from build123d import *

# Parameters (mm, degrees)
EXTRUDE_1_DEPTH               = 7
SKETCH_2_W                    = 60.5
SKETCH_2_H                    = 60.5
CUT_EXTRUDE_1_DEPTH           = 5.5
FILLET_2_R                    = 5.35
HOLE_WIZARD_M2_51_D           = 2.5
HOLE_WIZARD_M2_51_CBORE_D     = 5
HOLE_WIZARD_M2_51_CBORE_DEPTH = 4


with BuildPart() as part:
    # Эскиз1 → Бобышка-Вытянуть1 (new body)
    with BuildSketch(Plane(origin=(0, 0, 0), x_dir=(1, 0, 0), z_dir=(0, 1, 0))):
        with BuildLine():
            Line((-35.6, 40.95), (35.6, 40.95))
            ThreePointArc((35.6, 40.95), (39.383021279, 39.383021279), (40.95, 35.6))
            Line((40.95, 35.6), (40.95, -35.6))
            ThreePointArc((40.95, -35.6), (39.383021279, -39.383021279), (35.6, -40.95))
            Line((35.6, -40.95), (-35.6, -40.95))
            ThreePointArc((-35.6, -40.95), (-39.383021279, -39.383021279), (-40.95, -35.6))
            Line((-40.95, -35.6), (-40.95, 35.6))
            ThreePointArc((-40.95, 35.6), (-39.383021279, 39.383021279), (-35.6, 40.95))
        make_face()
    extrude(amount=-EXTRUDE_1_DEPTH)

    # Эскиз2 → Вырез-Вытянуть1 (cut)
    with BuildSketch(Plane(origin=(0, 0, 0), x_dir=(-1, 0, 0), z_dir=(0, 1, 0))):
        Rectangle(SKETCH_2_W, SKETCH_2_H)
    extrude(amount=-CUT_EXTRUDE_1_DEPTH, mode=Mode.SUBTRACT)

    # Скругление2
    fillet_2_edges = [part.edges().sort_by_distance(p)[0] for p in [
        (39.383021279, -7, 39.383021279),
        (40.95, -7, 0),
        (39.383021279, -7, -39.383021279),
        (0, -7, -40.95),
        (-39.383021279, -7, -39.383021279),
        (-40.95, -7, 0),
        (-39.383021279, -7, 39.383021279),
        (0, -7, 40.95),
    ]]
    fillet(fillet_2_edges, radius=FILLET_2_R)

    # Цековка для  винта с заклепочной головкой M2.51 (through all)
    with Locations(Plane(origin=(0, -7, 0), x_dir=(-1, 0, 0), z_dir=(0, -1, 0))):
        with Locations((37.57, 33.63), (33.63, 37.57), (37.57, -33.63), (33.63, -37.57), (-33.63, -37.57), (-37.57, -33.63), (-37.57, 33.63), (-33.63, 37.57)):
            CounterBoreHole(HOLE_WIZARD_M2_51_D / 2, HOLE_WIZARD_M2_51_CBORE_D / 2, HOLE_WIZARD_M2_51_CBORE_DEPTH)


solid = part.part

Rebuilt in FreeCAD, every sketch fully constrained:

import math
import FreeCAD as App
import Part
import Sketcher
from FreeCAD import Vector


def edges_at(feature, points):
    """Names of the edges that pass closest to the given points."""
    edges = feature.Shape.Edges
    near = lambda p: min(range(len(edges)), key=lambda i: edges[i].distToShape(Part.Vertex(*p))[0])
    return sorted({f"Edge{near(p) + 1}" for p in points})

doc = App.newDocument("Part")
body = doc.addObject("PartDesign::Body", "Body")

# Sketch on XZ plane
sketch1 = body.newObject("Sketcher::SketchObject", "Sketch")
sketch1.AttachmentSupport = (doc.getObject("XZ_Plane"), [""])
sketch1.MapMode = "FlatFace"
sketch1.addGeometry(Part.LineSegment(Vector(36, -41, 0), Vector(-36, -41, 0)), False)
sketch1.addGeometry(Part.ArcOfCircle(Part.Circle(Vector(-36, -36, 0), Vector(0, 0, 1), 5), math.radians(-180), math.radians(-90)), False)
sketch1.addGeometry(Part.LineSegment(Vector(-41, -36, 0), Vector(-41, 36, 0)), False)
sketch1.addGeometry(Part.ArcOfCircle(Part.Circle(Vector(-36, 36, 0), Vector(0, 0, 1), 5), math.radians(90), math.radians(180)), False)
sketch1.addGeometry(Part.LineSegment(Vector(-36, 41, 0), Vector(36, 41, 0)), False)
sketch1.addGeometry(Part.ArcOfCircle(Part.Circle(Vector(36, 36, 0), Vector(0, 0, 1), 5), math.radians(0), math.radians(90)), False)
sketch1.addGeometry(Part.LineSegment(Vector(41, 36, 0), Vector(41, -36, 0)), False)
sketch1.addGeometry(Part.ArcOfCircle(Part.Circle(Vector(36, -36, 0), Vector(0, 0, 1), 5), math.radians(-90), math.radians(0)), False)
sketch1.addConstraint(Sketcher.Constraint("Tangent", 0, 2, 1, 2))
sketch1.addConstraint(Sketcher.Constraint("Tangent", 1, 1, 2, 1))
sketch1.addConstraint(Sketcher.Constraint("Tangent", 2, 2, 3, 2))
sketch1.addConstraint(Sketcher.Constraint("Tangent", 3, 1, 4, 1))
sketch1.addConstraint(Sketcher.Constraint("Tangent", 4, 2, 5, 2))
sketch1.addConstraint(Sketcher.Constraint("Tangent", 5, 1, 6, 1))
sketch1.addConstraint(Sketcher.Constraint("Tangent", 6, 2, 7, 2))
sketch1.addConstraint(Sketcher.Constraint("Tangent", 7, 1, 0, 1))
sketch1.addConstraint(Sketcher.Constraint("Horizontal", 0))
sketch1.addConstraint(Sketcher.Constraint("Vertical", 2))
sketch1.addConstraint(Sketcher.Constraint("Horizontal", 4))
sketch1.addConstraint(Sketcher.Constraint("Vertical", 6))
sketch1.addConstraint(Sketcher.Constraint("Equal", 1, 3))
sketch1.addConstraint(Sketcher.Constraint("Equal", 3, 5))
sketch1.addConstraint(Sketcher.Constraint("Equal", 5, 7))
sketch1.addConstraint(Sketcher.Constraint("Symmetric", 1, 3, 5, 3, -1, 1))
sketch1.addConstraint(Sketcher.Constraint("Equal", 4, 2))
sketch1.addConstraint(Sketcher.Constraint("Radius", 1, 5.35))
sketch1.addConstraint(Sketcher.Constraint("DistanceX", 0, 2, 0, 1, 71.2))
pad1 = body.newObject("PartDesign::Pad", "Pad")
pad1.Profile = sketch1
pad1.Length = 7

# Sketch on XZ plane
sketch2 = body.newObject("Sketcher::SketchObject", "Sketch001")
sketch2.AttachmentSupport = (doc.getObject("XZ_Plane"), [""])
sketch2.MapMode = "FlatFace"
sketch2.addGeometry(Part.LineSegment(Vector(30, 30, 0), Vector(30, -30, 0)), False)
sketch2.addGeometry(Part.LineSegment(Vector(30, -30, 0), Vector(-30, -30, 0)), False)
sketch2.addGeometry(Part.LineSegment(Vector(-30, -30, 0), Vector(-30, 30, 0)), False)
sketch2.addGeometry(Part.LineSegment(Vector(-30, 30, 0), Vector(30, 30, 0)), False)
sketch2.addConstraint(Sketcher.Constraint("Coincident", 0, 2, 1, 1))
sketch2.addConstraint(Sketcher.Constraint("Coincident", 1, 2, 2, 1))
sketch2.addConstraint(Sketcher.Constraint("Coincident", 2, 2, 3, 1))
sketch2.addConstraint(Sketcher.Constraint("Coincident", 3, 2, 0, 1))
sketch2.addConstraint(Sketcher.Constraint("Vertical", 0))
sketch2.addConstraint(Sketcher.Constraint("Horizontal", 1))
sketch2.addConstraint(Sketcher.Constraint("Vertical", 2))
sketch2.addConstraint(Sketcher.Constraint("Horizontal", 3))
sketch2.addConstraint(Sketcher.Constraint("Symmetric", 0, 2, 2, 2, -1, 1))
sketch2.addConstraint(Sketcher.Constraint("Equal", 3, 0))
sketch2.addConstraint(Sketcher.Constraint("DistanceX", 1, 2, 1, 1, 60.5))
pocket1 = body.newObject("PartDesign::Pocket", "Pocket")
pocket1.Profile = sketch2
pocket1.Length = 5.5
pocket1.Reversed = True
doc.recompute()

fillet = body.newObject("PartDesign::Fillet", "Fillet")
fillet.Base = (pocket1, edges_at(pocket1, [
    (39.383, -7, 39.383),
    (40.95, -7, 0),
    (39.383, -7, -39.383),
    (0, -7, -40.95),
    (-39.383, -7, -39.383),
    (-40.95, -7, 0),
    (-39.383, -7, 39.383),
    (0, -7, 40.95),
]))
fillet.Radius = 5.35

# Sketch on XZ plane
sketch3 = body.newObject("Sketcher::SketchObject", "Sketch002")
sketch3.AttachmentSupport = (doc.getObject("XZ_Plane"), [""])
sketch3.MapMode = "FlatFace"
sketch3.AttachmentOffset = App.Placement(Vector(0, 0, 7), App.Rotation())
sketch3.addGeometry(Part.Circle(Vector(-37.6, -33.6, 0), Vector(0, 0, 1), 1.2), False)
sketch3.addGeometry(Part.Circle(Vector(-33.6, -37.6, 0), Vector(0, 0, 1), 1.2), False)
sketch3.addGeometry(Part.Circle(Vector(-37.6, 33.6, 0), Vector(0, 0, 1), 1.2), False)
sketch3.addGeometry(Part.Circle(Vector(-33.6, 37.6, 0), Vector(0, 0, 1), 1.2), False)
sketch3.addGeometry(Part.Circle(Vector(33.6, 37.6, 0), Vector(0, 0, 1), 1.2), False)
sketch3.addGeometry(Part.Circle(Vector(37.6, 33.6, 0), Vector(0, 0, 1), 1.2), False)
sketch3.addGeometry(Part.Circle(Vector(37.6, -33.6, 0), Vector(0, 0, 1), 1.2), False)
sketch3.addGeometry(Part.Circle(Vector(33.6, -37.6, 0), Vector(0, 0, 1), 1.2), False)
sketch3.addConstraint(Sketcher.Constraint("Equal", 0, 1))
sketch3.addConstraint(Sketcher.Constraint("Equal", 1, 2))
sketch3.addConstraint(Sketcher.Constraint("Equal", 2, 3))
sketch3.addConstraint(Sketcher.Constraint("Equal", 3, 4))
sketch3.addConstraint(Sketcher.Constraint("Equal", 4, 5))
sketch3.addConstraint(Sketcher.Constraint("Equal", 5, 6))
sketch3.addConstraint(Sketcher.Constraint("Equal", 6, 7))
sketch3.addConstraint(Sketcher.Constraint("Symmetric", 1, 3, 4, 3, -1, 1))
sketch3.addConstraint(Sketcher.Constraint("Symmetric", 0, 3, 5, 3, -1, 1))
sketch3.addConstraint(Sketcher.Constraint("Symmetric", 2, 3, 6, 3, -1, 1))
sketch3.addConstraint(Sketcher.Constraint("Symmetric", 3, 3, 7, 3, -1, 1))
sketch3.addConstraint(Sketcher.Constraint("Symmetric", 3, 3, 4, 3, -2))
sketch3.addConstraint(Sketcher.Constraint("Symmetric", 2, 3, 5, 3, -2))
sketch3.addConstraint(Sketcher.Constraint("Diameter", 0, 2.5))
sketch3.addConstraint(Sketcher.Constraint("DistanceY", 1, 3, 2, 3, 71.2))
sketch3.addConstraint(Sketcher.Constraint("DistanceX", 2, 3, 4, 3, 71.2))
sketch3.addConstraint(Sketcher.Constraint("DistanceX", 0, 3, -1, 1, 37.57))
sketch3.addConstraint(Sketcher.Constraint("DistanceY", 0, 3, -1, 1, 33.63))
doc.recompute()
hole = body.newObject("PartDesign::Hole", "Hole")
hole.Profile = sketch3
hole.ThreadType = "None"
hole.Diameter = 2.5
hole.DepthType = "ThroughAll"
hole.HoleCutType = "Counterbore"
hole.HoleCutDiameter = 5
hole.HoleCutDepth = 4

doc.recompute()
